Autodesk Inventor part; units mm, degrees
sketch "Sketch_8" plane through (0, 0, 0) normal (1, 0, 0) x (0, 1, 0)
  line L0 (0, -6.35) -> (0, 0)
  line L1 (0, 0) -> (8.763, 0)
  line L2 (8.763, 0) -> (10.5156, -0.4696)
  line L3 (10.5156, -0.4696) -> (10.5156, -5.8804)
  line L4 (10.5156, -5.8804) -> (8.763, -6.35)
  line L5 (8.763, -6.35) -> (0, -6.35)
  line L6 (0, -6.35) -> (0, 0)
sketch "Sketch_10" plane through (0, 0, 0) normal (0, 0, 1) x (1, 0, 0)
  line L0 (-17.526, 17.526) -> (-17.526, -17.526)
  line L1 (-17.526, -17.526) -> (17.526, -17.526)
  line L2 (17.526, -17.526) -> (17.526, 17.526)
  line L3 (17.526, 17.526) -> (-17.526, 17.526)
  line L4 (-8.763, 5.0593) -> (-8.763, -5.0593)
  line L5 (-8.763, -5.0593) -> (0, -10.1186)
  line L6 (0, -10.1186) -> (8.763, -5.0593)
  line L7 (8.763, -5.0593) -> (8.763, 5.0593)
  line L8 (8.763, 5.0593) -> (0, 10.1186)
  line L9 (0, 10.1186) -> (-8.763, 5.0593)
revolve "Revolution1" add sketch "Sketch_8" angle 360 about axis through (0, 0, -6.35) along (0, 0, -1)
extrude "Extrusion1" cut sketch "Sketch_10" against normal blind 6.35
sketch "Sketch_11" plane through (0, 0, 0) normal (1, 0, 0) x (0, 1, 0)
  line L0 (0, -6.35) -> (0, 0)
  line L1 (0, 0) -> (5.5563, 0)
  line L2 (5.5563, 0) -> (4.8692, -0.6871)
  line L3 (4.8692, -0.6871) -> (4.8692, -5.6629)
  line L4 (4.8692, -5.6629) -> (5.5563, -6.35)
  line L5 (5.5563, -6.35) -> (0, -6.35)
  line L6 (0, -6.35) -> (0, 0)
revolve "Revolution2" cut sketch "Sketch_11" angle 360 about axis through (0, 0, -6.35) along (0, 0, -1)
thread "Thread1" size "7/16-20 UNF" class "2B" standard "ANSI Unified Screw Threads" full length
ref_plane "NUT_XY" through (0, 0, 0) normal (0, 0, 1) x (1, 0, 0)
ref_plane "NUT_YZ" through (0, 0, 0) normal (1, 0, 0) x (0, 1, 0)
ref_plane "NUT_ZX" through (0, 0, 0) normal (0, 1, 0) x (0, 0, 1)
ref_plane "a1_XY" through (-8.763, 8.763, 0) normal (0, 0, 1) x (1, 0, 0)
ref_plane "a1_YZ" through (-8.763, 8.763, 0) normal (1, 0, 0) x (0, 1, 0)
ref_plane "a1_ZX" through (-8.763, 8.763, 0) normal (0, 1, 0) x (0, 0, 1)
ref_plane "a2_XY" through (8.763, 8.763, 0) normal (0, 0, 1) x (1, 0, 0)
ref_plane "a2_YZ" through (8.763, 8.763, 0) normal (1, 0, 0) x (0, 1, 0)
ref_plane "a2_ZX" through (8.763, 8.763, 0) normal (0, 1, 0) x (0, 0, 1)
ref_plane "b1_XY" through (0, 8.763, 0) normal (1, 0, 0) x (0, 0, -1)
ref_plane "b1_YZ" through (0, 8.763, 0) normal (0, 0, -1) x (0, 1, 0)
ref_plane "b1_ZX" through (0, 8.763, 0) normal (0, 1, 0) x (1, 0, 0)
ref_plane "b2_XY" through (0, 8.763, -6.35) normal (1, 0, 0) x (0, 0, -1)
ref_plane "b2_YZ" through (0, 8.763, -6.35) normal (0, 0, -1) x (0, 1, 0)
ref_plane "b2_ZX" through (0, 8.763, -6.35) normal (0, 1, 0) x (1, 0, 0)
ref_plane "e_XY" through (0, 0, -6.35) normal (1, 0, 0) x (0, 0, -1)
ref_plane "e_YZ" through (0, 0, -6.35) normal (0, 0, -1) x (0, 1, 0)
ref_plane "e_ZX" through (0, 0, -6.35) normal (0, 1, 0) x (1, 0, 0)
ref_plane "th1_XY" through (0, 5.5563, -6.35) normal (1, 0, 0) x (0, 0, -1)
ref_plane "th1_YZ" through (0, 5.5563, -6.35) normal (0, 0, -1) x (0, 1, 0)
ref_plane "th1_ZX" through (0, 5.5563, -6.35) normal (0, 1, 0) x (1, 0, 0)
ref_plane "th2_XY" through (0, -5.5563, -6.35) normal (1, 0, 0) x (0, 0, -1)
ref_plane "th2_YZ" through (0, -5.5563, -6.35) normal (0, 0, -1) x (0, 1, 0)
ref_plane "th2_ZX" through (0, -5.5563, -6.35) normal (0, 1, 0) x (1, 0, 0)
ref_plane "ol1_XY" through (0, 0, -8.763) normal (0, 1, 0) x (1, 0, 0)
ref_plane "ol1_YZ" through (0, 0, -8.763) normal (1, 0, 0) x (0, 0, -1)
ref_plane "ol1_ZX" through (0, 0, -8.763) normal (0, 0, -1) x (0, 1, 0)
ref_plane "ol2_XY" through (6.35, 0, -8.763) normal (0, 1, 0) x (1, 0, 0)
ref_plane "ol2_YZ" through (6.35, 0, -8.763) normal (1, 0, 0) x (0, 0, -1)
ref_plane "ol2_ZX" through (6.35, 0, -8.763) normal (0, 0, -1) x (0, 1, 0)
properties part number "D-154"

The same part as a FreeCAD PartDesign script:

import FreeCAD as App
import Part
import Sketcher

V = App.Vector
Q = App.Units.Quantity

doc = App.newDocument("Part")
body = doc.addObject("PartDesign::Body", "Body")

sketch1 = body.newObject("Sketcher::SketchObject", "Sketch")
sketch1.AttachmentSupport = (doc.getObject("YZ_Plane"), [""])
sketch1.MapMode = "FlatFace"
sketch1.addGeometry([
    Part.LineSegment(V(0, 0, 0), V(0, -6.3, 0)),
    Part.LineSegment(V(0, -6.3, 0), V(8.8, -6.3, 0)),
    Part.LineSegment(V(8.8, -6.3, 0), V(10.5, -5.9, 0)),
    Part.LineSegment(V(10.5, -5.9, 0), V(10.5, -0.5, 0)),
    Part.LineSegment(V(10.5, -0.5, 0), V(8.8, 0, 0)),
    Part.LineSegment(V(8.8, 0, 0), V(0, 0, 0)),
], False)
sketch1.addConstraint([
    Sketcher.Constraint("Coincident", 0, 2, 1, 1),
    Sketcher.Constraint("Coincident", 1, 2, 2, 1),
    Sketcher.Constraint("Coincident", 2, 2, 3, 1),
    Sketcher.Constraint("Coincident", 3, 2, 4, 1),
    Sketcher.Constraint("Coincident", 4, 2, 5, 1),
    Sketcher.Constraint("Coincident", 5, 2, 0, 1),
    Sketcher.Constraint("Vertical", 0),
    Sketcher.Constraint("Horizontal", 1),
    Sketcher.Constraint("Vertical", 3),
    Sketcher.Constraint("Horizontal", 5),
    Sketcher.Constraint("Coincident", 5, 2, -1, 1),
    Sketcher.Constraint("Vertical", 1, 2, 4, 2),
    Sketcher.Constraint("Equal", 2, 4),
    Sketcher.Constraint("Angle", 2, Q("14.9998 deg")),
    Sketcher.Constraint("DistanceY", 0, 2, 0, 1, Q("0.25 in")),
    Sketcher.Constraint("DistanceX", 1, 1, 1, 2, Q("0.345 in")),
    Sketcher.Constraint("DistanceX", -1, 1, 2, 2, Q("0.414 in")),
])
revolution = body.newObject("PartDesign::Revolution", "Revolution")
revolution.Profile = sketch1
revolution.ReferenceAxis = (sketch1, ["V_Axis"])
revolution.Angle = 360

sketch2 = body.newObject("Sketcher::SketchObject", "Sketch001")
sketch2.AttachmentSupport = (doc.getObject("XY_Plane"), [""])
sketch2.MapMode = "FlatFace"
sketch2.addGeometry([
    Part.LineSegment(V(18, 18, 0), V(-18, 18, 0)),
    Part.LineSegment(V(-18, 18, 0), V(-18, -18, 0)),
    Part.LineSegment(V(-18, -18, 0), V(18, -18, 0)),
    Part.LineSegment(V(18, -18, 0), V(18, 18, 0)),
    Part.LineSegment(V(-9, -5, 0), V(-9, 5, 0)),
    Part.LineSegment(V(-9, 5, 0), V(0, 10, 0)),
    Part.LineSegment(V(0, 10, 0), V(9, 5, 0)),
    Part.LineSegment(V(9, 5, 0), V(9, -5, 0)),
    Part.LineSegment(V(9, -5, 0), V(0, -10, 0)),
    Part.LineSegment(V(0, -10, 0), V(-9, -5, 0)),
], False)
sketch2.addConstraint([
    Sketcher.Constraint("Coincident", 0, 2, 1, 1),
    Sketcher.Constraint("Coincident", 1, 2, 2, 1),
    Sketcher.Constraint("Coincident", 2, 2, 3, 1),
    Sketcher.Constraint("Coincident", 3, 2, 0, 1),
    Sketcher.Constraint("Coincident", 4, 2, 5, 1),
    Sketcher.Constraint("Coincident", 5, 2, 6, 1),
    Sketcher.Constraint("Coincident", 6, 2, 7, 1),
    Sketcher.Constraint("Coincident", 7, 2, 8, 1),
    Sketcher.Constraint("Coincident", 8, 2, 9, 1),
    Sketcher.Constraint("Coincident", 9, 2, 4, 1),
    Sketcher.Constraint("Horizontal", 0),
    Sketcher.Constraint("Vertical", 1),
    Sketcher.Constraint("Horizontal", 2),
    Sketcher.Constraint("Vertical", 3),
    Sketcher.Constraint("Vertical", 4),
    Sketcher.Constraint("Vertical", 7),
    Sketcher.Constraint("Symmetric", 0, 2, 2, 2, -1, 1),
    Sketcher.Constraint("Symmetric", 4, 2, 7, 2, -1, 1),
    Sketcher.Constraint("Symmetric", 5, 2, 8, 2, -1, 1),
    Sketcher.Constraint("PointOnObject", 5, 2, -2),
    Sketcher.Constraint("Parallel", 6, 9),
    Sketcher.Constraint("Horizontal", 4, 2, 6, 2),
    Sketcher.Constraint("Equal", 2, 1),
    Sketcher.Constraint("Angle", 5, Q("30 deg")),
    Sketcher.Constraint("DistanceX", 0, 2, 0, 1, Q("1.38 in")),
    Sketcher.Constraint("DistanceX", 4, 2, 6, 2, Q("0.69 in")),
    Sketcher.Constraint("DistanceY", 4, 1, 4, 2, Q("10.1186 mm")),
])
pocket1 = body.newObject("PartDesign::Pocket", "Pocket")
pocket1.Profile = sketch2
pocket1.Length = Q("0.25 in")

sketch3 = body.newObject("Sketcher::SketchObject", "Sketch002")
sketch3.AttachmentSupport = (doc.getObject("YZ_Plane"), [""])
sketch3.MapMode = "FlatFace"
sketch3.addGeometry([
    Part.LineSegment(V(0, 0, 0), V(0, -6.3, 0)),
    Part.LineSegment(V(0, -6.3, 0), V(5.6, -6.3, 0)),
    Part.LineSegment(V(5.6, -6.3, 0), V(4.9, -5.7, 0)),
    Part.LineSegment(V(4.9, -5.7, 0), V(4.9, -0.7, 0)),
    Part.LineSegment(V(4.9, -0.7, 0), V(5.6, 0, 0)),
    Part.LineSegment(V(5.6, 0, 0), V(0, 0, 0)),
], False)
sketch3.addConstraint([
    Sketcher.Constraint("Coincident", 0, 2, 1, 1),
    Sketcher.Constraint("Coincident", 1, 2, 2, 1),
    Sketcher.Constraint("Coincident", 2, 2, 3, 1),
    Sketcher.Constraint("Coincident", 3, 2, 4, 1),
    Sketcher.Constraint("Coincident", 4, 2, 5, 1),
    Sketcher.Constraint("Coincident", 5, 2, 0, 1),
    Sketcher.Constraint("Vertical", 0),
    Sketcher.Constraint("Horizontal", 1),
    Sketcher.Constraint("Vertical", 3),
    Sketcher.Constraint("Horizontal", 5),
    Sketcher.Constraint("Coincident", 5, 2, -1, 1),
    Sketcher.Constraint("Perpendicular", 2, 4),
    Sketcher.Constraint("Vertical", 1, 2, 4, 2),
    Sketcher.Constraint("Equal", 2, 4),
    Sketcher.Constraint("DistanceY", 0, 2, 0, 1, Q("0.25 in")),
    Sketcher.Constraint("DistanceX", 1, 1, 1, 2, Q("0.218752 in")),
    Sketcher.Constraint("DistanceY", 3, 1, 3, 2, Q("0.1959 in")),
])
groove = body.newObject("PartDesign::Groove", "Groove")
groove.Profile = sketch3
groove.ReferenceAxis = (sketch3, ["V_Axis"])
groove.Angle = 360

doc.recompute()
